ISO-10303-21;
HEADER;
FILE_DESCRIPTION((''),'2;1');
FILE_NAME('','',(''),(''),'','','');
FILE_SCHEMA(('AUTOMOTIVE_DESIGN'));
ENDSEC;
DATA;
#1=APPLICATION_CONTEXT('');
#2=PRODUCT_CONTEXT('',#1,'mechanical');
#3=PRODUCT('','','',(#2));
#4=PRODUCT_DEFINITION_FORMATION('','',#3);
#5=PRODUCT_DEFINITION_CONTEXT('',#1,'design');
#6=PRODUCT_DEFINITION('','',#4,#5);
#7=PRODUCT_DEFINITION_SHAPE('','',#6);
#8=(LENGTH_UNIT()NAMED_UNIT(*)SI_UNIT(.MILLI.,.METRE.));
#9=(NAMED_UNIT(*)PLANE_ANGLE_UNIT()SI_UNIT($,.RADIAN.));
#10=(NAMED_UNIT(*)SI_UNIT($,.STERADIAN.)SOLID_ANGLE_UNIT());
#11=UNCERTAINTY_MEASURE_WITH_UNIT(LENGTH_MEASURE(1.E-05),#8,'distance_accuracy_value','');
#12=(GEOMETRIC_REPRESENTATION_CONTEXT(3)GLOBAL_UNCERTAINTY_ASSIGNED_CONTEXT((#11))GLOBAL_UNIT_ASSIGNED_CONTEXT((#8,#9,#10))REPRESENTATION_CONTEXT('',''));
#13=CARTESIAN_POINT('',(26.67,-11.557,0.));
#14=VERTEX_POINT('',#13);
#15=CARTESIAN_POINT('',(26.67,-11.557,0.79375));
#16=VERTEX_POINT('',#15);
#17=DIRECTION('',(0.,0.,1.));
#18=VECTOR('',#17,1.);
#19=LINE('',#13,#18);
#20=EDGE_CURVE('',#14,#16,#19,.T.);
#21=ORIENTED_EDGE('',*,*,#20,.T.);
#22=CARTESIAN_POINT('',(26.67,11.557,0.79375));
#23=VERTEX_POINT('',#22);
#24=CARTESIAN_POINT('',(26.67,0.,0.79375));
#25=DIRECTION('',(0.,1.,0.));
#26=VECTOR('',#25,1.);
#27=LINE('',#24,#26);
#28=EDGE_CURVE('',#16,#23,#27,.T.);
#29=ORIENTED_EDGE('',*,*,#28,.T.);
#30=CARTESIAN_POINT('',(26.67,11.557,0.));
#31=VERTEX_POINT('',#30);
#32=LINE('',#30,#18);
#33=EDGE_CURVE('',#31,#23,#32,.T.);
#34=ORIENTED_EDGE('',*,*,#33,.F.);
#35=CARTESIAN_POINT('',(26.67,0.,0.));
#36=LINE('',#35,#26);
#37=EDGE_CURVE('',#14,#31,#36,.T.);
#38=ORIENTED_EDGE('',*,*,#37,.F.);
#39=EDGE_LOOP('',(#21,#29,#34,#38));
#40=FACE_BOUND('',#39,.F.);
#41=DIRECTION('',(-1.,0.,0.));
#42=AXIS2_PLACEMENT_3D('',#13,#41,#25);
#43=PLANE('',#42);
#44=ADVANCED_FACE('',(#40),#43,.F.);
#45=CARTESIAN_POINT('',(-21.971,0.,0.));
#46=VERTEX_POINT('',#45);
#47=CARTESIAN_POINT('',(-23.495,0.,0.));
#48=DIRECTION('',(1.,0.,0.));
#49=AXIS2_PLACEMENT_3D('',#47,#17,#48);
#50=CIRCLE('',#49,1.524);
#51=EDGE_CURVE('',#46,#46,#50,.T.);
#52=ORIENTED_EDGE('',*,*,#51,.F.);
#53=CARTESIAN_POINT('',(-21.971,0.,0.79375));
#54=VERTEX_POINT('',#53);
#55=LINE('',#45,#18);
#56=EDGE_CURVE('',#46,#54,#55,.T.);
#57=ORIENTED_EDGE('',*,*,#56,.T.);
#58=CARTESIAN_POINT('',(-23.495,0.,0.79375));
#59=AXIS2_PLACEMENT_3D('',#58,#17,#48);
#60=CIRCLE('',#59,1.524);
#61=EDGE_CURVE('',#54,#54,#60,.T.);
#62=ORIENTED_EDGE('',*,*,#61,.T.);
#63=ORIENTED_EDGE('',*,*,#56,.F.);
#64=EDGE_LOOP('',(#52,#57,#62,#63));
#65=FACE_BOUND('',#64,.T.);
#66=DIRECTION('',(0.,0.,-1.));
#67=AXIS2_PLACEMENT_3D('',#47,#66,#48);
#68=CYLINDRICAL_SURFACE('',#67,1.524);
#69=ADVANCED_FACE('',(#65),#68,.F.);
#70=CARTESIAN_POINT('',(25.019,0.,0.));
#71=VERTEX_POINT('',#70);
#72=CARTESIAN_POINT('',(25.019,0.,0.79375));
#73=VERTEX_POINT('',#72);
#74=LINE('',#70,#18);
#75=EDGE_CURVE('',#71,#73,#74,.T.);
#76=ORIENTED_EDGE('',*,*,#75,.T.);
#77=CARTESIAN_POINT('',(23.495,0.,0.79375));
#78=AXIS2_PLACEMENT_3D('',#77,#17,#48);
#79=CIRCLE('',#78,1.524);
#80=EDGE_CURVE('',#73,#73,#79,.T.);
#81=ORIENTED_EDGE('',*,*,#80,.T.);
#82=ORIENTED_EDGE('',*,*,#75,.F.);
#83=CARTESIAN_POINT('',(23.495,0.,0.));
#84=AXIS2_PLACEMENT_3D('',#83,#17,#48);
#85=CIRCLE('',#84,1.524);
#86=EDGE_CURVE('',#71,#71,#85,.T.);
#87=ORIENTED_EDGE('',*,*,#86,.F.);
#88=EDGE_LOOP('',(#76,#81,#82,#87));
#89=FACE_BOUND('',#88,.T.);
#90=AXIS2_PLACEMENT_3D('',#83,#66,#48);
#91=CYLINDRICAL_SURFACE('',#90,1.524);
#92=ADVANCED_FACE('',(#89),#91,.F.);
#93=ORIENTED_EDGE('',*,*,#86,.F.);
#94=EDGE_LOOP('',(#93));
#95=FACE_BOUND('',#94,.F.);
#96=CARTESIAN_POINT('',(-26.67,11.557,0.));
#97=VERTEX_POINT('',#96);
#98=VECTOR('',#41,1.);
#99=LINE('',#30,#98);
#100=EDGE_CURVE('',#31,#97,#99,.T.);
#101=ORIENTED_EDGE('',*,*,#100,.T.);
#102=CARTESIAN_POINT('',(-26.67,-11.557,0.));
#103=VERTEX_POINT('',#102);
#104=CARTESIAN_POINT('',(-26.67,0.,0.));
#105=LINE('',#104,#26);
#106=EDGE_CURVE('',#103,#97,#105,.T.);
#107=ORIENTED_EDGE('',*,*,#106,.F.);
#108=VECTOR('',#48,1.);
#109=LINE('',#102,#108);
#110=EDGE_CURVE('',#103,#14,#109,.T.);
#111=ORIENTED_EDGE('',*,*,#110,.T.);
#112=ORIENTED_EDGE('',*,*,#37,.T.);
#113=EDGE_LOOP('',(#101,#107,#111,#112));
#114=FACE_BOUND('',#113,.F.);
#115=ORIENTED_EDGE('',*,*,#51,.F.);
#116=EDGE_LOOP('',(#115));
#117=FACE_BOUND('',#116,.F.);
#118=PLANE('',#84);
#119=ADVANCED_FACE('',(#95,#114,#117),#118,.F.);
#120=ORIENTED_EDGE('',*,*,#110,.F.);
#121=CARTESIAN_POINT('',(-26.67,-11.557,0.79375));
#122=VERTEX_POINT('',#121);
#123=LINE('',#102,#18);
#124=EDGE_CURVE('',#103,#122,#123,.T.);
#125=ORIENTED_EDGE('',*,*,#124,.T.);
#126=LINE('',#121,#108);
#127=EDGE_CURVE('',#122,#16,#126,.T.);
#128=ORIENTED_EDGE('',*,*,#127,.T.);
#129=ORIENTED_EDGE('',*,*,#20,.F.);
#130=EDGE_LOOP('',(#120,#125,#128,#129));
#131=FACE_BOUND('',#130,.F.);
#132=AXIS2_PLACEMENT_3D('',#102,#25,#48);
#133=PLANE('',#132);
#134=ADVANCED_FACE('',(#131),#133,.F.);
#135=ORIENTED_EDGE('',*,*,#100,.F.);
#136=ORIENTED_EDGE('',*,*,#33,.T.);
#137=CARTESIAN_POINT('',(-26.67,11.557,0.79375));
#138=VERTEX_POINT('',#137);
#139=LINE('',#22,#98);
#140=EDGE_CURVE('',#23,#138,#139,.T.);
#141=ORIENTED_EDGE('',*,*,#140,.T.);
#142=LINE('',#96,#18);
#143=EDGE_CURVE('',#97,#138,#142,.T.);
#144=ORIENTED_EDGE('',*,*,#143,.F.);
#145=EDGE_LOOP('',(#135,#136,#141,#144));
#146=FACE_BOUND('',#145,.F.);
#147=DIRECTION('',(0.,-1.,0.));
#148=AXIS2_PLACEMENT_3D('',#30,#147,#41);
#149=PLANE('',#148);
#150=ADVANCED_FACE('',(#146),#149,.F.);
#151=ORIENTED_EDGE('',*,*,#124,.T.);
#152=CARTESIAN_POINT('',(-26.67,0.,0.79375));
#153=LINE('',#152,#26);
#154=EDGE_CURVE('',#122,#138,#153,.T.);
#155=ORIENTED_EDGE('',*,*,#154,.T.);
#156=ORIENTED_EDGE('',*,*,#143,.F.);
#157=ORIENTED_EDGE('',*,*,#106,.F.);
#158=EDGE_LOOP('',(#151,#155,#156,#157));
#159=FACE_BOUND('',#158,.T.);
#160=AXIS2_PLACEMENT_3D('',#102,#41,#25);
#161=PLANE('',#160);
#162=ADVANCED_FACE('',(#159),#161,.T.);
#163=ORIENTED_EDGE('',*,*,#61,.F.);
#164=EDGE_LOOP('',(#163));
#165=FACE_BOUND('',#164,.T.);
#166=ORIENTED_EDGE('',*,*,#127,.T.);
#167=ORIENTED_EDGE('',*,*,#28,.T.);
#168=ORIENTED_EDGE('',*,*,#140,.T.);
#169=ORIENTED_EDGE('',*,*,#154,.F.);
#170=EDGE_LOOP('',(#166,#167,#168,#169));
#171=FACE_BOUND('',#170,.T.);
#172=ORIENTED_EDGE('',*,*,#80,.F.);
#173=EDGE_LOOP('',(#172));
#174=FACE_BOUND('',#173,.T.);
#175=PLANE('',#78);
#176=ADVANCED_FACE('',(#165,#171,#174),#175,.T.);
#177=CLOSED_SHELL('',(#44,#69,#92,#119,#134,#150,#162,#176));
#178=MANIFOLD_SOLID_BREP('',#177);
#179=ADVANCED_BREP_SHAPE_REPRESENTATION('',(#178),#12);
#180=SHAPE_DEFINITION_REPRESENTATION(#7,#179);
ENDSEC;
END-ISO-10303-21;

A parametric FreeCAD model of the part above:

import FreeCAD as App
import Part
import Sketcher

V = App.Vector
Q = App.Units.Quantity


def add_polygon(sketch, points):
    """Adds a closed chain of lines whose ends are joined by coincident constraints."""
    first, n = sketch.GeometryCount, len(points)
    for a, b in zip(points, points[1:] + points[:1]):
        sketch.addGeometry(Part.LineSegment(App.Vector(*a, 0), App.Vector(*b, 0)), False)
    for i in range(n):
        sketch.addConstraint(Sketcher.Constraint("Coincident", first + i, 2, first + (i + 1) % n, 1))

doc = App.newDocument("Part")
body = doc.addObject("PartDesign::Body", "Body")

sketch1 = doc.addObject("Sketcher::SketchObject", "Sketch")
body.addObject(sketch1)
sketch1.AttachmentSupport = (doc.XY_Plane, [""])
sketch1.MapMode = "FlatFace"
add_polygon(sketch1, [(26.7, -11.6), (26.7, 11.6), (-26.7, 11.6), (-26.7, -11.6)])
sketch1.addGeometry(Part.Circle(V(-23.5, 0, 0), V(0, 0, 1), 1.5), False)
sketch1.addGeometry(Part.Circle(V(23.5, 0, 0), V(0, 0, 1), 1.5), False)
sketch1.addConstraint([
    Sketcher.Constraint("Vertical", 0),
    Sketcher.Constraint("Horizontal", 1),
    Sketcher.Constraint("Vertical", 2),
    Sketcher.Constraint("Horizontal", 3),
    Sketcher.Constraint("Equal", 4, 5),
    Sketcher.Constraint("Symmetric", 4, 3, 5, 3, -1, 1),
    Sketcher.Constraint("Symmetric", 0, 2, 2, 2, -1, 1),
    Sketcher.Constraint("PointOnObject", 4, 3, -1),
    Sketcher.Constraint("Diameter", 4, Q("0.12 in")),
    Sketcher.Constraint("DistanceX", 1, 2, 1, 1, Q("2.1 in")),
    Sketcher.Constraint("DistanceY", 0, 1, 0, 2, Q("0.91 in")),
    Sketcher.Constraint("DistanceX", 4, 3, 5, 3, Q("1.85 in")),
])
pad1 = doc.addObject("PartDesign::Pad", "Pad")
body.addObject(pad1)
pad1.Profile = sketch1
pad1.Length = Q("0.03125 in")

doc.recompute()
